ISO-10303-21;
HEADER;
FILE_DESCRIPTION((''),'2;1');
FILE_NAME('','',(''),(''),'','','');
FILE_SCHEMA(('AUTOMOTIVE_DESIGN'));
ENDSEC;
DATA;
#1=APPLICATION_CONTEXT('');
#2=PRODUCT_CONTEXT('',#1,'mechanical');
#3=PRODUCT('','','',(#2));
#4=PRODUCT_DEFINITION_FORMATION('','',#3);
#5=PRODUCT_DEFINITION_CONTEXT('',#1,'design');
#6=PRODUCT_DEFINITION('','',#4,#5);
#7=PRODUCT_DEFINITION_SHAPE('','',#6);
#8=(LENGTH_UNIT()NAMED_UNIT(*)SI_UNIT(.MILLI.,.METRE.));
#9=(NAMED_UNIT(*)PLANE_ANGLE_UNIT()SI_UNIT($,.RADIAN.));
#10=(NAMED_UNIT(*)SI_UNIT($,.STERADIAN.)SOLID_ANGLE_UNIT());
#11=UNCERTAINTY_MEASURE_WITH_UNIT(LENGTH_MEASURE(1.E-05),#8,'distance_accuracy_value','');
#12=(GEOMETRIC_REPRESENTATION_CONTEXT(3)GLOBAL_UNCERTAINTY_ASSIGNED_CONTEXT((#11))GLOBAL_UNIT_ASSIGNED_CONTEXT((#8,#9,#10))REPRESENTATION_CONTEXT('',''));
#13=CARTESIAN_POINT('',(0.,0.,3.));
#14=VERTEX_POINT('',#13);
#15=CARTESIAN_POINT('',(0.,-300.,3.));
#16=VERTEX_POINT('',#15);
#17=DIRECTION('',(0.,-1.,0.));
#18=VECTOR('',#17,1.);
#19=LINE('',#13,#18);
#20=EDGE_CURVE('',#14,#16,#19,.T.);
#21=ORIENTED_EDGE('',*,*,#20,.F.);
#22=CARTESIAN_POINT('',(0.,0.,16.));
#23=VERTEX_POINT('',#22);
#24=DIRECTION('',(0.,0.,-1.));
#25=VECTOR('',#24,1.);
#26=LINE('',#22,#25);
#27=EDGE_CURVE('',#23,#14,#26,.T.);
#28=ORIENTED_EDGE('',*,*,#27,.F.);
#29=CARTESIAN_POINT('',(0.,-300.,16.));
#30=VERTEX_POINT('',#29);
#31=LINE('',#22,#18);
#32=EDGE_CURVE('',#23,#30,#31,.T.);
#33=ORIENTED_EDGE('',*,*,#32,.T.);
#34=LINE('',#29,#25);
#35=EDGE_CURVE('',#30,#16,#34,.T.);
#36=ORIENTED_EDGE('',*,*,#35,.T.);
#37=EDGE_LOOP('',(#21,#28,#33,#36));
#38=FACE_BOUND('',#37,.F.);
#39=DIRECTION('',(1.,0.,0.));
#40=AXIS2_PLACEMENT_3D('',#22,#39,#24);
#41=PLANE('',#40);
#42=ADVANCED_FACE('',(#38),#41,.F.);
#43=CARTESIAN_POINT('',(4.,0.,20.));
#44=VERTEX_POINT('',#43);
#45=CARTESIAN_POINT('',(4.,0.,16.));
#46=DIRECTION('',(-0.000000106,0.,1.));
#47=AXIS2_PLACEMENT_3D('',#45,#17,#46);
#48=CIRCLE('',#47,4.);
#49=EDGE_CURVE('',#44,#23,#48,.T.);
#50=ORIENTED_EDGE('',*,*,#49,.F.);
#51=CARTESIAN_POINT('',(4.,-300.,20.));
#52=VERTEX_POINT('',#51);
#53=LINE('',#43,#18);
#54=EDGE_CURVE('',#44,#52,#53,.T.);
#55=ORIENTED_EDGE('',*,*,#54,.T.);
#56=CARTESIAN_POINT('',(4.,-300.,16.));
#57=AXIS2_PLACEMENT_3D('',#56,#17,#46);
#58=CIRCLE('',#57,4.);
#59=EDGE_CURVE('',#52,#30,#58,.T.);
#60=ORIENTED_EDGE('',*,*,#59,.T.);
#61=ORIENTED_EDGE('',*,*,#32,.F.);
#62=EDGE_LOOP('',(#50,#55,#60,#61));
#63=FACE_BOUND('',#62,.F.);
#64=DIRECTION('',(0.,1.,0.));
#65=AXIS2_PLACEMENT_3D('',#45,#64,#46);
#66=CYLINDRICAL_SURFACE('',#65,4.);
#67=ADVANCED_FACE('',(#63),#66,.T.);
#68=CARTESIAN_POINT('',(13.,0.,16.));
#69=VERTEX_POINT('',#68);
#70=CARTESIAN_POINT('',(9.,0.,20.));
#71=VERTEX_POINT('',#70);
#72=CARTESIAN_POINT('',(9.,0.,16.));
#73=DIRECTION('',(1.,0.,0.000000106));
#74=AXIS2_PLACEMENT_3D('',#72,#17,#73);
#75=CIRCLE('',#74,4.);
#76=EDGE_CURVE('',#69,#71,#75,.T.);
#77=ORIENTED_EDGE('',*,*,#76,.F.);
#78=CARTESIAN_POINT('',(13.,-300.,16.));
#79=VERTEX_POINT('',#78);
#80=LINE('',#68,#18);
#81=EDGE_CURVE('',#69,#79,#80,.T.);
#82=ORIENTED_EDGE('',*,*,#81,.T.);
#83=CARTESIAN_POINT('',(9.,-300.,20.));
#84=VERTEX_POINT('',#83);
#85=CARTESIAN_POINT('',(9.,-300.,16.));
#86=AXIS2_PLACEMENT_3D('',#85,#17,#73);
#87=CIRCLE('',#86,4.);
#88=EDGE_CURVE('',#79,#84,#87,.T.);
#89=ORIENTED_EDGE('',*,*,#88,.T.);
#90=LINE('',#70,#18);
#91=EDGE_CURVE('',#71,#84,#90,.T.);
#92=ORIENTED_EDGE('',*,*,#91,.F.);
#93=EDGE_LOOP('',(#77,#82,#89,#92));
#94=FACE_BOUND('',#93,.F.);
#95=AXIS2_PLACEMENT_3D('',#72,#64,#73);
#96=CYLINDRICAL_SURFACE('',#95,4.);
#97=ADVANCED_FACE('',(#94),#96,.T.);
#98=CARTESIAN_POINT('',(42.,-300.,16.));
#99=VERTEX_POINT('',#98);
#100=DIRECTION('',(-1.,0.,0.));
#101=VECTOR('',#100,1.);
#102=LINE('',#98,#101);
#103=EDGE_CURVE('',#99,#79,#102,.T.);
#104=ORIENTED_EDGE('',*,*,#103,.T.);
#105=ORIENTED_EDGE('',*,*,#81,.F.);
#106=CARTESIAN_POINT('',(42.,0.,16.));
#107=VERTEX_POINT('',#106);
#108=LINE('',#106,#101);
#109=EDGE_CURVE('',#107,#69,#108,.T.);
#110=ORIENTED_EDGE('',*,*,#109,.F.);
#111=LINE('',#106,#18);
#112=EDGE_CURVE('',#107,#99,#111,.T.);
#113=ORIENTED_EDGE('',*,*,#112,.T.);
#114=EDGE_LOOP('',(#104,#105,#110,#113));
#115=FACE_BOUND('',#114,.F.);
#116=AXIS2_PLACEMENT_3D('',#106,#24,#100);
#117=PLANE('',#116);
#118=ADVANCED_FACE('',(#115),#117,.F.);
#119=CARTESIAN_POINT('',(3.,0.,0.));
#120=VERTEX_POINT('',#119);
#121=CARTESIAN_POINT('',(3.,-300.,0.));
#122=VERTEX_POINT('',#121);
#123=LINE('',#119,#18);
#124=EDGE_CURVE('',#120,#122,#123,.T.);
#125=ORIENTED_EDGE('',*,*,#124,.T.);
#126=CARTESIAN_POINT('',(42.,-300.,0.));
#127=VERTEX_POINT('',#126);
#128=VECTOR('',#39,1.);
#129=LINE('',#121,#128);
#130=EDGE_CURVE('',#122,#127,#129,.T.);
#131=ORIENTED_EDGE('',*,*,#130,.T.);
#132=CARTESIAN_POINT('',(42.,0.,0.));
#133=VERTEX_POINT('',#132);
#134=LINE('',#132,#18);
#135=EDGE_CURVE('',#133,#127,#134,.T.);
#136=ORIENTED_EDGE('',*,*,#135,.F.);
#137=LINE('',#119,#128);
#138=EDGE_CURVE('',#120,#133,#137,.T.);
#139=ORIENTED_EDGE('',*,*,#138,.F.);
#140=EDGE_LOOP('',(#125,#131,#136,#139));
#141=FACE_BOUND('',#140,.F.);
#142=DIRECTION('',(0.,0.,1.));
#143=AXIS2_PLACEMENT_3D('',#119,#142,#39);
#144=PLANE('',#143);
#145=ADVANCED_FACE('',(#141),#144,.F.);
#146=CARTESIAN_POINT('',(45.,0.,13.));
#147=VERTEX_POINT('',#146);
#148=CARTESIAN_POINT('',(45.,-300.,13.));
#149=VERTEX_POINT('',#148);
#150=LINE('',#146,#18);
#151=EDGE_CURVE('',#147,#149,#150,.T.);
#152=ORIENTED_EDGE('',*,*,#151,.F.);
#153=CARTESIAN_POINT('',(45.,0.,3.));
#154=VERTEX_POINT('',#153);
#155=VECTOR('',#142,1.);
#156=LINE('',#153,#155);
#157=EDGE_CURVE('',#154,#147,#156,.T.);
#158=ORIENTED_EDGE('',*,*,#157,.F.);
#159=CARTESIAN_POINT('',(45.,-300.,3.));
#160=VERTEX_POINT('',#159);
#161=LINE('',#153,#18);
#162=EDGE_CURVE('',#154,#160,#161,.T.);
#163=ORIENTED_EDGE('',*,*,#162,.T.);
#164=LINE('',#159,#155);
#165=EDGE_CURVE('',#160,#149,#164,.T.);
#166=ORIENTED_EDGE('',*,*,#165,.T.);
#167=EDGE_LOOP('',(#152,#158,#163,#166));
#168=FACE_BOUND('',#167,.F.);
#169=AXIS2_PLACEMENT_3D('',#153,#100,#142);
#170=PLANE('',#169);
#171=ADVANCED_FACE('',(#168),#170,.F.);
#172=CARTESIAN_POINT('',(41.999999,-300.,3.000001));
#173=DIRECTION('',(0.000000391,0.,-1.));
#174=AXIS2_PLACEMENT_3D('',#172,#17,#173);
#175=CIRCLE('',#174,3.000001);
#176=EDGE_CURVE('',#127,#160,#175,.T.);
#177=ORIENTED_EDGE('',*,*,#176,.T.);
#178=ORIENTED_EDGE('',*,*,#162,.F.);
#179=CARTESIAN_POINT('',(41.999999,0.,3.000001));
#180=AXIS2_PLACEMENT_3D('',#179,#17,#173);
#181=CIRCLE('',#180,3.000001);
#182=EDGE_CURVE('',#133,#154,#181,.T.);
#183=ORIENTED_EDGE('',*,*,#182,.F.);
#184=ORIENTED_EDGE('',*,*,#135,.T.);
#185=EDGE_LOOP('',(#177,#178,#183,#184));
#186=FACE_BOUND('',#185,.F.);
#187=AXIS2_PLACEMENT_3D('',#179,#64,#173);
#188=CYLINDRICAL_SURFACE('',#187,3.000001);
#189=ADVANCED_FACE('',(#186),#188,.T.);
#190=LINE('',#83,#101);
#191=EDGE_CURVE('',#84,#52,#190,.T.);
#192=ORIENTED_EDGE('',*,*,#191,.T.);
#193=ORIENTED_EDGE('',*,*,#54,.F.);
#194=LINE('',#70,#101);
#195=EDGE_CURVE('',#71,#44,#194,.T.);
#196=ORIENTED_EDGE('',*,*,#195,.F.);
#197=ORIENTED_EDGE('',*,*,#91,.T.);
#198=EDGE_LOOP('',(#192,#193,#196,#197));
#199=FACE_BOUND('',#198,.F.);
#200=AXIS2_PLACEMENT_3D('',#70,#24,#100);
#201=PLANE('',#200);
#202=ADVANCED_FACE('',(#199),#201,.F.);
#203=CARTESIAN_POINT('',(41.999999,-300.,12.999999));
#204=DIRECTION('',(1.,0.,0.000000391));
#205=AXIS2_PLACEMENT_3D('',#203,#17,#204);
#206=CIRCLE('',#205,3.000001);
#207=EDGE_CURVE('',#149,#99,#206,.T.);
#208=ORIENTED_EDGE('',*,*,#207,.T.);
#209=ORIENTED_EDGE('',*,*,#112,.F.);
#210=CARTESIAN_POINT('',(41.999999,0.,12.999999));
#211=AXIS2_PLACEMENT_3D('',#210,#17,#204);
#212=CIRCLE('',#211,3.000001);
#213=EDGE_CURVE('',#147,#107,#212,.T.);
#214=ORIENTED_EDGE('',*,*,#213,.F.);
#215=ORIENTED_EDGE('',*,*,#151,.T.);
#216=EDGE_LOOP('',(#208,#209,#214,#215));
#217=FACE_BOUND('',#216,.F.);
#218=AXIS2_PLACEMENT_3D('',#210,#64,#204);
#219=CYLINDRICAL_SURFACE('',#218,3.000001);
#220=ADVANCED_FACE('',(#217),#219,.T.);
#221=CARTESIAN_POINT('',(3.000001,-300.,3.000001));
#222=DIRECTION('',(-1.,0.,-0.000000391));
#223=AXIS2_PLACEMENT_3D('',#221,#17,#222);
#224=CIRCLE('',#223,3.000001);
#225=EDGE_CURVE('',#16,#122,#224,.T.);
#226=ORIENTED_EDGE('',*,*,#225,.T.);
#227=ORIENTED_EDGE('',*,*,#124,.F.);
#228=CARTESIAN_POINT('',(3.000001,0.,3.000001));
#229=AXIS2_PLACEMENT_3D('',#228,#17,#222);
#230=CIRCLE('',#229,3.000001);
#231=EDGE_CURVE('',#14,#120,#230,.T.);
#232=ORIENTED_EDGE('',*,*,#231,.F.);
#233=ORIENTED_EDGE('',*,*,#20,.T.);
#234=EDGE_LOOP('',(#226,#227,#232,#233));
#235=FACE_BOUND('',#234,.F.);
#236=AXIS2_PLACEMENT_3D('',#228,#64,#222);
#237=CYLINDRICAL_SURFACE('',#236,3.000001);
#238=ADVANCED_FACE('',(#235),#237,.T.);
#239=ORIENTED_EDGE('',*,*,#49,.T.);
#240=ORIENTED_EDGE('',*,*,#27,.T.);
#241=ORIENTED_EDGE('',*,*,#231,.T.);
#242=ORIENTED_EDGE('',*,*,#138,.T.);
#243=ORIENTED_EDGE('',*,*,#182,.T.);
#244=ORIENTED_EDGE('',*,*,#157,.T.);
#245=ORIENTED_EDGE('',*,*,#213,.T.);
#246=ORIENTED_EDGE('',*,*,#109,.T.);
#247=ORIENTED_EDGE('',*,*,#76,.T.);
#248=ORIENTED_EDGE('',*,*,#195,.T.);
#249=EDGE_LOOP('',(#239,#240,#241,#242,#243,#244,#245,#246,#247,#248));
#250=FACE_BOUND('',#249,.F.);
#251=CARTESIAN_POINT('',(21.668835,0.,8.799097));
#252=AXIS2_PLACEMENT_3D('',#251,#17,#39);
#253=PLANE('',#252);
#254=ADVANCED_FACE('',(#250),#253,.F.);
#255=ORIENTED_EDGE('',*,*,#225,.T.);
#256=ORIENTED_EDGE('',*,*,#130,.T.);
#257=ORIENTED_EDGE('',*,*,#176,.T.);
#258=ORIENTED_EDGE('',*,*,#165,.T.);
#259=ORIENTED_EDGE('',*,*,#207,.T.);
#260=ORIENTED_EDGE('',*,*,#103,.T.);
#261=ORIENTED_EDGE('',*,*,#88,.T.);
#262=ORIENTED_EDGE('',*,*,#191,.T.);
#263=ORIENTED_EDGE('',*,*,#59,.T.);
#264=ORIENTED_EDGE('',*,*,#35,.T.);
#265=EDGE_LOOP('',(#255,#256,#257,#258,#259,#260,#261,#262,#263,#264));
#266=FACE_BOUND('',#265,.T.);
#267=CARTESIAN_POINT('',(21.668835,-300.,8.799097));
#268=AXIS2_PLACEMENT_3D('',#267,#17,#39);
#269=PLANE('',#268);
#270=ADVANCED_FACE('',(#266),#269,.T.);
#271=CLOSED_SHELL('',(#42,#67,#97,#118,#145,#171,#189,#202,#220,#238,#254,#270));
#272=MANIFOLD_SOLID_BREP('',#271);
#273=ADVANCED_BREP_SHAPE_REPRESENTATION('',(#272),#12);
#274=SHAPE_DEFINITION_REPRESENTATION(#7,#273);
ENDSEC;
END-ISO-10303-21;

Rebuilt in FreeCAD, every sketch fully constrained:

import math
import FreeCAD as App
import Part
import Sketcher

V = App.Vector
Q = App.Units.Quantity

doc = App.newDocument("Part")
params = doc.addObject("Spreadsheet::Sheet", "Params")
for row, (alias, value) in enumerate([
    ("sketch1_radius", "3.000001 mm"),
    ("sketch1_radius2", "4 mm"),
    ("sketch1_width", "39 mm"),
    ("sketch1_width2", "29 mm"),
    ("sketch1_height", "10 mm"),
    ("pad1_length", "300 mm"),
], start=1):
    params.set(f"A{row}", alias)
    params.set(f"B{row}", "=" + value)
    params.setAlias(f"B{row}", alias)

body = doc.addObject("PartDesign::Body", "Body")

sketch1 = body.newObject("Sketcher::SketchObject", "Sketch")
sketch1.AttachmentSupport = (doc.getObject("XZ_Plane"), [""])
sketch1.MapMode = "FlatFace"
sketch1.addGeometry(Part.ArcOfCircle(Part.Circle(V(3.000001, 3.000001, 0), V(0, 0, 1), 3.000001), math.radians(-179.999978), math.radians(-90.000022)), False)
sketch1.addGeometry(Part.LineSegment(V(3, 0, 0), V(42, 0, 0)), False)
sketch1.addGeometry(Part.ArcOfCircle(Part.Circle(V(41.999999, 3.000001, 0), V(0, 0, 1), 3.000001), math.radians(-89.999978), math.radians(-0.000022)), False)
sketch1.addGeometry(Part.LineSegment(V(45, 3, 0), V(45, 13, 0)), False)
sketch1.addGeometry(Part.ArcOfCircle(Part.Circle(V(41.999999, 12.999999, 0), V(0, 0, 1), 3.000001), math.radians(0.000022), math.radians(89.999978)), False)
sketch1.addGeometry(Part.LineSegment(V(42, 16, 0), V(13, 16, 0)), False)
sketch1.addGeometry(Part.ArcOfCircle(Part.Circle(V(9, 16, 0), V(0, 0, 1), 4), math.radians(0.000006), math.radians(89.999994)), False)
sketch1.addGeometry(Part.LineSegment(V(9, 20, 0), V(4, 20, 0)), False)
sketch1.addGeometry(Part.ArcOfCircle(Part.Circle(V(4, 16, 0), V(0, 0, 1), 4), math.radians(90.000006), math.radians(179.999994)), False)
sketch1.addGeometry(Part.LineSegment(V(0, 16, 0), V(0, 3, 0)), False)
sketch1.addConstraint(Sketcher.Constraint("Tangent", 0, 2, 1, 1))
sketch1.addConstraint(Sketcher.Constraint("Tangent", 1, 2, 2, 1))
sketch1.addConstraint(Sketcher.Constraint("Tangent", 2, 2, 3, 1))
sketch1.addConstraint(Sketcher.Constraint("Tangent", 3, 2, 4, 1))
sketch1.addConstraint(Sketcher.Constraint("Tangent", 4, 2, 5, 1))
sketch1.addConstraint(Sketcher.Constraint("Coincident", 5, 2, 6, 1))
sketch1.addConstraint(Sketcher.Constraint("Tangent", 6, 2, 7, 1))
sketch1.addConstraint(Sketcher.Constraint("Tangent", 7, 2, 8, 1))
sketch1.addConstraint(Sketcher.Constraint("Tangent", 8, 2, 9, 1))
sketch1.addConstraint(Sketcher.Constraint("Tangent", 9, 2, 0, 1))
sketch1.addConstraint(Sketcher.Constraint("Horizontal", 1))
sketch1.addConstraint(Sketcher.Constraint("Vertical", 3))
sketch1.addConstraint(Sketcher.Constraint("Horizontal", 5))
sketch1.addConstraint(Sketcher.Constraint("Horizontal", 7))
sketch1.addConstraint(Sketcher.Constraint("Vertical", 9))
sketch1.addConstraint(Sketcher.Constraint("Equal", 0, 2))
sketch1.addConstraint(Sketcher.Constraint("Equal", 2, 4))
sketch1.addConstraint(Sketcher.Constraint("Equal", 6, 8))
sketch1.addConstraint(Sketcher.Constraint("PointOnObject", 0, 2, -1))
sketch1.addConstraint(Sketcher.Constraint("PointOnObject", 8, 2, -2))
sketch1.addConstraint(Sketcher.Constraint("Horizontal", 8, 3, 4, 2))
sketch1.addConstraint(Sketcher.Constraint("Radius", 0, Q("3.000001 mm")))
sketch1.addConstraint(Sketcher.Constraint("Radius", 6, Q("4 mm")))
sketch1.addConstraint(Sketcher.Constraint("DistanceX", 1, 1, 1, 2, Q("39 mm")))
sketch1.addConstraint(Sketcher.Constraint("DistanceX", 5, 2, 5, 1, Q("29 mm")))
sketch1.addConstraint(Sketcher.Constraint("DistanceY", 3, 1, 3, 2, Q("10 mm")))
sketch1.setExpression("Constraints[21]", "Params.sketch1_radius")
sketch1.setExpression("Constraints[22]", "Params.sketch1_radius2")
sketch1.setExpression("Constraints[23]", "Params.sketch1_width")
sketch1.setExpression("Constraints[24]", "Params.sketch1_width2")
sketch1.setExpression("Constraints[25]", "Params.sketch1_height")
pad1 = body.newObject("PartDesign::Pad", "Pad")
pad1.Profile = sketch1
pad1.setExpression("Length", "Params.pad1_length")

doc.recompute()
